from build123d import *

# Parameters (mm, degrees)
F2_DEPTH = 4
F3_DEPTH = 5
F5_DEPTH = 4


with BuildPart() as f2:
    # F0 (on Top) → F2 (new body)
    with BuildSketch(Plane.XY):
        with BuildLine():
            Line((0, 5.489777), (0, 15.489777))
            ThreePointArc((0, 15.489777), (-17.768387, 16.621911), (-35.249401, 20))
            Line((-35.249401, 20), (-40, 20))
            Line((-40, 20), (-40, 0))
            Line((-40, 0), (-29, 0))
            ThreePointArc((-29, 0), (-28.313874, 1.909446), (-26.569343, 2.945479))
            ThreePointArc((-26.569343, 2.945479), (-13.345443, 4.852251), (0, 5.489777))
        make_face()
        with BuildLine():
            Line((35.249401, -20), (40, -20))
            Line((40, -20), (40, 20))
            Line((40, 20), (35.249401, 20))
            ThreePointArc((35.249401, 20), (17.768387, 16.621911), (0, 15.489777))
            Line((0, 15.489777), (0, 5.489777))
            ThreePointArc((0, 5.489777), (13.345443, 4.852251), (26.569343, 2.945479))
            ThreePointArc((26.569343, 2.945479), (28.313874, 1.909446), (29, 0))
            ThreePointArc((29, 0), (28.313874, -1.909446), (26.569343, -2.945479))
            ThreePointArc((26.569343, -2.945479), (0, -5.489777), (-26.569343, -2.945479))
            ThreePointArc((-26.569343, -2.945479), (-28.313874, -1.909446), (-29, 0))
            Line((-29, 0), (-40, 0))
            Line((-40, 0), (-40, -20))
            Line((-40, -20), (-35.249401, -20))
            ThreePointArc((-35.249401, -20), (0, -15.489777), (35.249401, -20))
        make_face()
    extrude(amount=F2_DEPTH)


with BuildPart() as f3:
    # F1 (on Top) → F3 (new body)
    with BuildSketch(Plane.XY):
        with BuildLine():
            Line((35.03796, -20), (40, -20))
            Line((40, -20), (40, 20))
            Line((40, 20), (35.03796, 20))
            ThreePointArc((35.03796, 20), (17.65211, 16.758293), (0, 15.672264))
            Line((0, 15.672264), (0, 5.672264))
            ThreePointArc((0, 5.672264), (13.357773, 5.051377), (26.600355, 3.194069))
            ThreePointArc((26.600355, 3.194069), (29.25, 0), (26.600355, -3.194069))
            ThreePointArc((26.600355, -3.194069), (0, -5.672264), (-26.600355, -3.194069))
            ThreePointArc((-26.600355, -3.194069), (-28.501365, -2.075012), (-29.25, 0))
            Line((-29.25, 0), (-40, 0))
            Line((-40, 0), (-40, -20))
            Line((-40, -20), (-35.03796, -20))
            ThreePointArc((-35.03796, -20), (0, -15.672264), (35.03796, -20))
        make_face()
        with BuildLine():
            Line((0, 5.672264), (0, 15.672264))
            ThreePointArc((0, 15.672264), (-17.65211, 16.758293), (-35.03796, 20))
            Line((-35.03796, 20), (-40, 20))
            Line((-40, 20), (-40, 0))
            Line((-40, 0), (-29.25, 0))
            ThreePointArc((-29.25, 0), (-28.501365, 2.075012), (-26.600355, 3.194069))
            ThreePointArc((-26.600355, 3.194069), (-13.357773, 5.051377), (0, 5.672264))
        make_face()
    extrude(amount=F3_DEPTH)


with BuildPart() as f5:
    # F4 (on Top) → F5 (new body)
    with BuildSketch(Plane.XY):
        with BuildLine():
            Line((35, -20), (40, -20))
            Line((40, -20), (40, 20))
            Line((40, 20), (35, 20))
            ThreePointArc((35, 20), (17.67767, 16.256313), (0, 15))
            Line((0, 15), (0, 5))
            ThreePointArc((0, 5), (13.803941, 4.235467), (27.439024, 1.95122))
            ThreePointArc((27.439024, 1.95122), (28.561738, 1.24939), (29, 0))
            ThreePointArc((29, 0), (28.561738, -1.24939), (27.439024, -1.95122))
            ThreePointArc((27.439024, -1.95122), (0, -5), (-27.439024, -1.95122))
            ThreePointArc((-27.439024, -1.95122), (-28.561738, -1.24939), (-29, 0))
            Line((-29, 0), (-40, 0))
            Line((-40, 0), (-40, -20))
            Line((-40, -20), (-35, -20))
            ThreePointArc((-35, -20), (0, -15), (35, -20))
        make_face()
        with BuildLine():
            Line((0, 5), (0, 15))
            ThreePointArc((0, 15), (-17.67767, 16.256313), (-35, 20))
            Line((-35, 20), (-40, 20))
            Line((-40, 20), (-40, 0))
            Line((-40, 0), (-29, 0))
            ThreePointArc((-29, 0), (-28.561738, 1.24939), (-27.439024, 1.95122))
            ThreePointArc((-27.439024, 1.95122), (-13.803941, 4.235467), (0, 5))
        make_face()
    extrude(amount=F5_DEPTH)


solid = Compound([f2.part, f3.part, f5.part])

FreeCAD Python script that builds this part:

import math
import FreeCAD as App
import Part
import Sketcher

V = App.Vector

doc = App.newDocument("Part")
body = doc.addObject("PartDesign::Body", "Body")

# Sketch on XY plane
sketch1 = body.newObject("Sketcher::SketchObject", "Sketch")
sketch1.AttachmentSupport = (doc.getObject("XY_Plane"), [""])
sketch1.MapMode = "FlatFace"
sketch1.addGeometry([
    Part.ArcOfCircle(Part.Circle(V(0.000011, 155.489859, 0), V(0, 0, 1), 140.000082), math.radians(-104.58295), math.radians(-90.000005)),  # 0
    Part.LineSegment(V(-35.249401, 20, 0), V(-40, 20, 0)),  # 1
    Part.LineSegment(V(-40, 20, 0), V(-40, -20, 0)),  # 2
    Part.LineSegment(V(-40, -20, 0), V(-35.249401, -20, 0)),  # 3
    Part.ArcOfCircle(Part.Circle(V(0, -155.489771, 0), V(0, 0, 1), 139.999994), math.radians(75.417046), math.radians(104.582954)),  # 4
    Part.LineSegment(V(35.249401, -20, 0), V(40, -20, 0)),  # 5
    Part.LineSegment(V(40, -20, 0), V(40, 20, 0)),  # 6
    Part.LineSegment(V(40, 20, 0), V(35.249401, 20, 0)),  # 7
    Part.ArcOfCircle(Part.Circle(V(-0.000011, 155.489859, 0), V(0, 0, 1), 140.000082), math.radians(-89.999995), math.radians(-75.41705)),  # 8
    Part.ArcOfCircle(Part.Circle(V(-25.999999, -0.000001, 0), V(0, 0, 1), 3.000001), math.radians(100.94002), math.radians(179.999978)),  # 9
    Part.ArcOfCircle(Part.Circle(V(-0.000001, -134.510216, 0), V(0, 0, 1), 139.999993), math.radians(90), math.radians(100.940005)),  # 10
    Part.ArcOfCircle(Part.Circle(V(0.000001, -134.510216, 0), V(0, 0, 1), 139.999993), math.radians(79.059995), math.radians(90)),  # 11
    Part.ArcOfCircle(Part.Circle(V(25.999999, -0.000001, 0), V(0, 0, 1), 3.000001), math.radians(0.000022), math.radians(79.05998)),  # 12
    Part.ArcOfCircle(Part.Circle(V(25.999999, 0.000001, 0), V(0, 0, 1), 3.000001), math.radians(-79.05998), math.radians(-0.000022)),  # 13
    Part.ArcOfCircle(Part.Circle(V(0, 134.510223, 0), V(0, 0, 1), 140), math.radians(-100.940005), math.radians(-79.059995)),  # 14
    Part.ArcOfCircle(Part.Circle(V(-25.999999, 0.000001, 0), V(0, 0, 1), 3.000001), math.radians(-179.999978), math.radians(-100.94002)),  # 15
], False)
sketch1.addConstraint([
    Sketcher.Constraint("Coincident", 0, 1, 1, 1),
    Sketcher.Constraint("Coincident", 1, 2, 2, 1),
    Sketcher.Constraint("Coincident", 2, 2, 3, 1),
    Sketcher.Constraint("Coincident", 3, 2, 4, 2),
    Sketcher.Constraint("Coincident", 4, 1, 5, 1),
    Sketcher.Constraint("Coincident", 5, 2, 6, 1),
    Sketcher.Constraint("Coincident", 6, 2, 7, 1),
    Sketcher.Constraint("Coincident", 7, 2, 8, 2),
    Sketcher.Constraint("Tangent", 8, 1, 0, 2),
    Sketcher.Constraint("Tangent", 9, 1, 10, 2),
    Sketcher.Constraint("Tangent", 10, 1, 11, 2),
    Sketcher.Constraint("Tangent", 11, 1, 12, 2),
    Sketcher.Constraint("Tangent", 12, 1, 13, 2),
    Sketcher.Constraint("Tangent", 13, 1, 14, 2),
    Sketcher.Constraint("Tangent", 14, 1, 15, 2),
    Sketcher.Constraint("Tangent", 15, 1, 9, 2),
    Sketcher.Constraint("Horizontal", 1),
    Sketcher.Constraint("Vertical", 2),
    Sketcher.Constraint("Horizontal", 3),
    Sketcher.Constraint("Horizontal", 5),
    Sketcher.Constraint("Vertical", 6),
    Sketcher.Constraint("Horizontal", 7),
    Sketcher.Constraint("Equal", 0, 8),
    Sketcher.Constraint("Equal", 4, 10),
    Sketcher.Constraint("Equal", 10, 11),
    Sketcher.Constraint("Equal", 9, 12),
    Sketcher.Constraint("Equal", 12, 13),
    Sketcher.Constraint("Equal", 13, 15),
    Sketcher.Constraint("Symmetric", 9, 3, 12, 3, -1, 1),
    Sketcher.Constraint("Symmetric", 0, 1, 4, 1, -1, 1),
    Sketcher.Constraint("Symmetric", 2, 2, 6, 2, -1, 1),
    Sketcher.Constraint("Symmetric", 3, 2, 4, 1, -2),
    Sketcher.Constraint("Symmetric", 10, 3, 14, 3, -1),
    Sketcher.Constraint("PointOnObject", 8, 1, -2),
    Sketcher.Constraint("PointOnObject", 10, 1, -2),
    Sketcher.Constraint("PointOnObject", 12, 1, -1),
    Sketcher.Constraint("PointOnObject", 15, 1, -1),
    Sketcher.Constraint("Vertical", 4, 1, 7, 2),
    Sketcher.Constraint("Radius", 9, 3.000001),
    Sketcher.Constraint("Radius", 14, 140.0),
    Sketcher.Constraint("DistanceY", 2, 2, 2, 1, 40.0),
    Sketcher.Constraint("DistanceX", 9, 3, -1, 1, 25.999999),
    Sketcher.Constraint("DistanceX", 1, 2, -1, 1, 40.0),
    Sketcher.Constraint("DistanceY", 10, 1, 8, 1, 10.0),
    Sketcher.Constraint("Radius", 0, 140.000082),
])
pad1 = body.newObject("PartDesign::Pad", "Pad")
pad1.Profile = sketch1
pad1.Length = 4
body2 = doc.addObject("PartDesign::Body", "Body001")

# Sketch on XY plane
sketch2 = body2.newObject("Sketcher::SketchObject", "Sketch001")
sketch2.AttachmentSupport = (doc.getObject("XY_Plane001"), [""])
sketch2.MapMode = "FlatFace"
sketch2.addGeometry([
    Part.LineSegment(V(35.03796, -20, 0), V(40, -20, 0)),  # 0
    Part.LineSegment(V(40, -20, 0), V(40, 20, 0)),  # 1
    Part.LineSegment(V(40, 20, 0), V(35.03796, 20, 0)),  # 2
    Part.ArcOfCircle(Part.Circle(V(0.000006, 159.672214, 0), V(0, 0, 1), 143.99995), math.radians(-90.000002), math.radians(-75.917474)),  # 3
    Part.ArcOfCircle(Part.Circle(V(-0.000006, 159.672214, 0), V(0, 0, 1), 143.99995), math.radians(-104.082526), math.radians(-89.999998)),  # 4
    Part.LineSegment(V(-35.03796, 20, 0), V(-40, 20, 0)),  # 5
    Part.LineSegment(V(-40, 20, 0), V(-40, -20, 0)),  # 6
    Part.LineSegment(V(-40, -20, 0), V(-35.03796, -20, 0)),  # 7
    Part.ArcOfCircle(Part.Circle(V(0, -159.672261, 0), V(0, 0, 1), 143.999997), math.radians(75.917476), math.radians(104.082524)),  # 8
    Part.ArcOfCircle(Part.Circle(V(0.000007, -138.327691, 0), V(0, 0, 1), 143.999955), math.radians(79.354918), math.radians(90.000003)),  # 9
    Part.ArcOfCircle(Part.Circle(V(25.999999, 0, 0), V(0, 0, 1), 3.250001), math.radians(-79.354915), math.radians(79.354915)),  # 10
    Part.ArcOfCircle(Part.Circle(V(0, 138.327772, 0), V(0, 0, 1), 144.000036), math.radians(-100.645079), math.radians(-79.354921)),  # 11
    Part.ArcOfCircle(Part.Circle(V(-26, 0, 0), V(0, 0, 1), 3.25), math.radians(179.999994), math.radians(259.354921)),  # 12
    Part.ArcOfCircle(Part.Circle(V(-26, 0, 0), V(0, 0, 1), 3.25), math.radians(100.645079), math.radians(180.000006)),  # 13
    Part.ArcOfCircle(Part.Circle(V(-0.000007, -138.327691, 0), V(0, 0, 1), 143.999955), math.radians(89.999997), math.radians(100.645082)),  # 14
], False)
sketch2.addConstraint([
    Sketcher.Constraint("Coincident", 0, 2, 1, 1),
    Sketcher.Constraint("Coincident", 1, 2, 2, 1),
    Sketcher.Constraint("Coincident", 2, 2, 3, 2),
    Sketcher.Constraint("Tangent", 3, 1, 4, 2),
    Sketcher.Constraint("Coincident", 4, 1, 5, 1),
    Sketcher.Constraint("Coincident", 5, 2, 6, 1),
    Sketcher.Constraint("Coincident", 6, 2, 7, 1),
    Sketcher.Constraint("Coincident", 7, 2, 8, 2),
    Sketcher.Constraint("Coincident", 8, 1, 0, 1),
    Sketcher.Constraint("Tangent", 9, 1, 10, 2),
    Sketcher.Constraint("Tangent", 10, 1, 11, 2),
    Sketcher.Constraint("Tangent", 11, 1, 12, 2),
    Sketcher.Constraint("Tangent", 12, 1, 13, 2),
    Sketcher.Constraint("Tangent", 13, 1, 14, 2),
    Sketcher.Constraint("Tangent", 14, 1, 9, 2),
    Sketcher.Constraint("Horizontal", 0),
    Sketcher.Constraint("Vertical", 1),
    Sketcher.Constraint("Horizontal", 2),
    Sketcher.Constraint("Horizontal", 5),
    Sketcher.Constraint("Vertical", 6),
    Sketcher.Constraint("Horizontal", 7),
    Sketcher.Constraint("Equal", 3, 4),
    Sketcher.Constraint("Equal", 10, 12),
    Sketcher.Constraint("Equal", 12, 13),
    Sketcher.Constraint("Equal", 9, 14),
    Sketcher.Constraint("Symmetric", 10, 3, 12, 3, -1, 1),
    Sketcher.Constraint("Symmetric", 0, 2, 5, 2, -1, 1),
    Sketcher.Constraint("Symmetric", 2, 2, 7, 2, -1, 1),
    Sketcher.Constraint("Symmetric", 2, 2, 4, 1, -2),
    Sketcher.Constraint("PointOnObject", 8, 3, -2),
    Sketcher.Constraint("PointOnObject", 10, 3, -1),
    Sketcher.Constraint("PointOnObject", 3, 1, -2),
    Sketcher.Constraint("PointOnObject", 12, 1, -1),
    Sketcher.Constraint("PointOnObject", 14, 1, -2),
    Sketcher.Constraint("DistanceY", 1, 1, 1, 2, 40.0),
    Sketcher.Constraint("Radius", 10, 3.250001),
    Sketcher.Constraint("DistanceX", -1, 1, 10, 3, 25.999999),
    Sketcher.Constraint("DistanceX", -1, 1, 0, 2, 40.0),
    Sketcher.Constraint("DistanceY", 14, 1, 3, 1, 10.0),
    Sketcher.Constraint("Radius", 3, 143.99995),
    Sketcher.Constraint("Radius", 8, 143.999997),
    Sketcher.Constraint("Radius", 9, 143.999955),
    Sketcher.Constraint("Radius", 11, 144.000036),
])
pad2 = body2.newObject("PartDesign::Pad", "Pad001")
pad2.Profile = sketch2
pad2.Length = 5
body3 = doc.addObject("PartDesign::Body", "Body002")

# Sketch on XY plane
sketch3 = body3.newObject("Sketcher::SketchObject", "Sketch002")
sketch3.AttachmentSupport = (doc.getObject("XY_Plane002"), [""])
sketch3.MapMode = "FlatFace"
sketch3.addGeometry([
    Part.LineSegment(V(35, -20, 0), V(40, -20, 0)),  # 0
    Part.LineSegment(V(40, -20, 0), V(40, 20, 0)),  # 1
    Part.LineSegment(V(40, 20, 0), V(35, 20, 0)),  # 2
    Part.ArcOfCircle(Part.Circle(V(0.000005, 139.999965, 0), V(0, 0, 1), 124.999965), math.radians(-90.000002), math.radians(-73.739793)),  # 3
    Part.ArcOfCircle(Part.Circle(V(-0.000005, 139.999965, 0), V(0, 0, 1), 124.999965), math.radians(-106.260207), math.radians(-89.999998)),  # 4
    Part.LineSegment(V(-35, 20, 0), V(-40, 20, 0)),  # 5
    Part.LineSegment(V(-40, 20, 0), V(-40, -20, 0)),  # 6
    Part.LineSegment(V(-40, -20, 0), V(-35, -20, 0)),  # 7
    Part.ArcOfCircle(Part.Circle(V(0, -140, 0), V(0, 0, 1), 125), math.radians(73.739795), math.radians(106.260205)),  # 8
    Part.ArcOfCircle(Part.Circle(V(0.000002, -120.000001, 0), V(0, 0, 1), 125.000001), math.radians(77.319618), math.radians(90.000001)),  # 9
    Part.ArcOfCircle(Part.Circle(V(27, 0, 0), V(0, 0, 1), 2), math.radians(-0.000011), math.radians(77.319627)),  # 10
    Part.ArcOfCircle(Part.Circle(V(27, 0, 0), V(0, 0, 1), 2), math.radians(-77.319627), math.radians(0.000011)),  # 11
    Part.ArcOfCircle(Part.Circle(V(0, 120.000016, 0), V(0, 0, 1), 125.000016), math.radians(-102.680382), math.radians(-77.319618)),  # 12
    Part.ArcOfCircle(Part.Circle(V(-27, 0, 0), V(0, 0, 1), 2), math.radians(179.999989), math.radians(257.319627)),  # 13
    Part.ArcOfCircle(Part.Circle(V(-27, 0, 0), V(0, 0, 1), 2), math.radians(102.680373), math.radians(180.000011)),  # 14
    Part.ArcOfCircle(Part.Circle(V(-0.000002, -120.000001, 0), V(0, 0, 1), 125.000001), math.radians(89.999999), math.radians(102.680382)),  # 15
], False)
sketch3.addConstraint([
    Sketcher.Constraint("Coincident", 0, 2, 1, 1),
    Sketcher.Constraint("Coincident", 1, 2, 2, 1),
    Sketcher.Constraint("Coincident", 2, 2, 3, 2),
    Sketcher.Constraint("Coincident", 3, 1, 4, 2),
    Sketcher.Constraint("Coincident", 4, 1, 5, 1),
    Sketcher.Constraint("Coincident", 5, 2, 6, 1),
    Sketcher.Constraint("Coincident", 6, 2, 7, 1),
    Sketcher.Constraint("Coincident", 7, 2, 8, 2),
    Sketcher.Constraint("Coincident", 8, 1, 0, 1),
    Sketcher.Constraint("Coincident", 9, 1, 10, 2),
    Sketcher.Constraint("Coincident", 10, 1, 11, 2),
    Sketcher.Constraint("Coincident", 11, 1, 12, 2),
    Sketcher.Constraint("Coincident", 12, 1, 13, 2),
    Sketcher.Constraint("Coincident", 13, 1, 14, 2),
    Sketcher.Constraint("Coincident", 14, 1, 15, 2),
    Sketcher.Constraint("Coincident", 15, 1, 9, 2),
    Sketcher.Constraint("Horizontal", 0),
    Sketcher.Constraint("Vertical", 1),
    Sketcher.Constraint("Horizontal", 2),
    Sketcher.Constraint("Horizontal", 5),
    Sketcher.Constraint("Vertical", 6),
    Sketcher.Constraint("Horizontal", 7),
    Sketcher.Constraint("Coincident", 11, 3, 10, 3),
    Sketcher.Constraint("Coincident", 14, 3, 13, 3),
    Sketcher.Constraint("Coincident", 15, 3, 9, 3),
    Sketcher.Constraint("PointOnObject", 8, 3, -2),
    Sketcher.Constraint("PointOnObject", 9, 3, -2),
    Sketcher.Constraint("PointOnObject", 10, 3, -1),
    Sketcher.Constraint("PointOnObject", 12, 3, -2),
    Sketcher.Constraint("PointOnObject", 3, 1, -2),
    Sketcher.Constraint("PointOnObject", 10, 1, -1),
    Sketcher.Constraint("PointOnObject", 13, 1, -1),
    Sketcher.Constraint("PointOnObject", 15, 1, -2),
    Sketcher.Constraint("Radius", 8, 125.0),
    Sketcher.Constraint("Radius", 9, 125.000001),
    Sketcher.Constraint("Radius", 10, 2.0),
    Sketcher.Constraint("Radius", 13, 2.0),
    Sketcher.Constraint("DistanceX", 0, 1, 0, 2, 5.0),
    Sketcher.Constraint("DistanceX", 2, 2, 2, 1, 5.0),
    Sketcher.Constraint("DistanceX", 5, 2, 5, 1, 5.0),
    Sketcher.Constraint("DistanceX", 7, 1, 7, 2, 5.0),
    Sketcher.Constraint("DistanceY", 1, 1, 1, 2, 40.0),
    Sketcher.Constraint("DistanceY", 6, 2, 6, 1, 40.0),
    Sketcher.Constraint("DistanceY", 8, 3, -1, 1, 140.0),
    Sketcher.Constraint("DistanceY", 9, 3, -1, 1, 120.000001),
    Sketcher.Constraint("DistanceX", -1, 1, 0, 2, 40.0),
    Sketcher.Constraint("DistanceY", -1, 1, 3, 1, 15.0),
    Sketcher.Constraint("DistanceX", 4, 1, -1, 1, 35.0),
    Sketcher.Constraint("Radius", 3, 124.999965),
    Sketcher.Constraint("Radius", 4, 124.999965),
    Sketcher.Constraint("Radius", 12, 125.000016),
    Sketcher.Constraint("DistanceY", -1, 1, 9, 1, 1.95122),
    Sketcher.Constraint("DistanceY", 11, 1, -1, 1, 1.95122),
    Sketcher.Constraint("DistanceY", 12, 1, -1, 1, 1.95122),
    Sketcher.Constraint("DistanceY", -1, 1, 14, 1, 1.95122),
])
pad3 = body3.newObject("PartDesign::Pad", "Pad002")
pad3.Profile = sketch3
pad3.Length = 4

doc.recompute()
